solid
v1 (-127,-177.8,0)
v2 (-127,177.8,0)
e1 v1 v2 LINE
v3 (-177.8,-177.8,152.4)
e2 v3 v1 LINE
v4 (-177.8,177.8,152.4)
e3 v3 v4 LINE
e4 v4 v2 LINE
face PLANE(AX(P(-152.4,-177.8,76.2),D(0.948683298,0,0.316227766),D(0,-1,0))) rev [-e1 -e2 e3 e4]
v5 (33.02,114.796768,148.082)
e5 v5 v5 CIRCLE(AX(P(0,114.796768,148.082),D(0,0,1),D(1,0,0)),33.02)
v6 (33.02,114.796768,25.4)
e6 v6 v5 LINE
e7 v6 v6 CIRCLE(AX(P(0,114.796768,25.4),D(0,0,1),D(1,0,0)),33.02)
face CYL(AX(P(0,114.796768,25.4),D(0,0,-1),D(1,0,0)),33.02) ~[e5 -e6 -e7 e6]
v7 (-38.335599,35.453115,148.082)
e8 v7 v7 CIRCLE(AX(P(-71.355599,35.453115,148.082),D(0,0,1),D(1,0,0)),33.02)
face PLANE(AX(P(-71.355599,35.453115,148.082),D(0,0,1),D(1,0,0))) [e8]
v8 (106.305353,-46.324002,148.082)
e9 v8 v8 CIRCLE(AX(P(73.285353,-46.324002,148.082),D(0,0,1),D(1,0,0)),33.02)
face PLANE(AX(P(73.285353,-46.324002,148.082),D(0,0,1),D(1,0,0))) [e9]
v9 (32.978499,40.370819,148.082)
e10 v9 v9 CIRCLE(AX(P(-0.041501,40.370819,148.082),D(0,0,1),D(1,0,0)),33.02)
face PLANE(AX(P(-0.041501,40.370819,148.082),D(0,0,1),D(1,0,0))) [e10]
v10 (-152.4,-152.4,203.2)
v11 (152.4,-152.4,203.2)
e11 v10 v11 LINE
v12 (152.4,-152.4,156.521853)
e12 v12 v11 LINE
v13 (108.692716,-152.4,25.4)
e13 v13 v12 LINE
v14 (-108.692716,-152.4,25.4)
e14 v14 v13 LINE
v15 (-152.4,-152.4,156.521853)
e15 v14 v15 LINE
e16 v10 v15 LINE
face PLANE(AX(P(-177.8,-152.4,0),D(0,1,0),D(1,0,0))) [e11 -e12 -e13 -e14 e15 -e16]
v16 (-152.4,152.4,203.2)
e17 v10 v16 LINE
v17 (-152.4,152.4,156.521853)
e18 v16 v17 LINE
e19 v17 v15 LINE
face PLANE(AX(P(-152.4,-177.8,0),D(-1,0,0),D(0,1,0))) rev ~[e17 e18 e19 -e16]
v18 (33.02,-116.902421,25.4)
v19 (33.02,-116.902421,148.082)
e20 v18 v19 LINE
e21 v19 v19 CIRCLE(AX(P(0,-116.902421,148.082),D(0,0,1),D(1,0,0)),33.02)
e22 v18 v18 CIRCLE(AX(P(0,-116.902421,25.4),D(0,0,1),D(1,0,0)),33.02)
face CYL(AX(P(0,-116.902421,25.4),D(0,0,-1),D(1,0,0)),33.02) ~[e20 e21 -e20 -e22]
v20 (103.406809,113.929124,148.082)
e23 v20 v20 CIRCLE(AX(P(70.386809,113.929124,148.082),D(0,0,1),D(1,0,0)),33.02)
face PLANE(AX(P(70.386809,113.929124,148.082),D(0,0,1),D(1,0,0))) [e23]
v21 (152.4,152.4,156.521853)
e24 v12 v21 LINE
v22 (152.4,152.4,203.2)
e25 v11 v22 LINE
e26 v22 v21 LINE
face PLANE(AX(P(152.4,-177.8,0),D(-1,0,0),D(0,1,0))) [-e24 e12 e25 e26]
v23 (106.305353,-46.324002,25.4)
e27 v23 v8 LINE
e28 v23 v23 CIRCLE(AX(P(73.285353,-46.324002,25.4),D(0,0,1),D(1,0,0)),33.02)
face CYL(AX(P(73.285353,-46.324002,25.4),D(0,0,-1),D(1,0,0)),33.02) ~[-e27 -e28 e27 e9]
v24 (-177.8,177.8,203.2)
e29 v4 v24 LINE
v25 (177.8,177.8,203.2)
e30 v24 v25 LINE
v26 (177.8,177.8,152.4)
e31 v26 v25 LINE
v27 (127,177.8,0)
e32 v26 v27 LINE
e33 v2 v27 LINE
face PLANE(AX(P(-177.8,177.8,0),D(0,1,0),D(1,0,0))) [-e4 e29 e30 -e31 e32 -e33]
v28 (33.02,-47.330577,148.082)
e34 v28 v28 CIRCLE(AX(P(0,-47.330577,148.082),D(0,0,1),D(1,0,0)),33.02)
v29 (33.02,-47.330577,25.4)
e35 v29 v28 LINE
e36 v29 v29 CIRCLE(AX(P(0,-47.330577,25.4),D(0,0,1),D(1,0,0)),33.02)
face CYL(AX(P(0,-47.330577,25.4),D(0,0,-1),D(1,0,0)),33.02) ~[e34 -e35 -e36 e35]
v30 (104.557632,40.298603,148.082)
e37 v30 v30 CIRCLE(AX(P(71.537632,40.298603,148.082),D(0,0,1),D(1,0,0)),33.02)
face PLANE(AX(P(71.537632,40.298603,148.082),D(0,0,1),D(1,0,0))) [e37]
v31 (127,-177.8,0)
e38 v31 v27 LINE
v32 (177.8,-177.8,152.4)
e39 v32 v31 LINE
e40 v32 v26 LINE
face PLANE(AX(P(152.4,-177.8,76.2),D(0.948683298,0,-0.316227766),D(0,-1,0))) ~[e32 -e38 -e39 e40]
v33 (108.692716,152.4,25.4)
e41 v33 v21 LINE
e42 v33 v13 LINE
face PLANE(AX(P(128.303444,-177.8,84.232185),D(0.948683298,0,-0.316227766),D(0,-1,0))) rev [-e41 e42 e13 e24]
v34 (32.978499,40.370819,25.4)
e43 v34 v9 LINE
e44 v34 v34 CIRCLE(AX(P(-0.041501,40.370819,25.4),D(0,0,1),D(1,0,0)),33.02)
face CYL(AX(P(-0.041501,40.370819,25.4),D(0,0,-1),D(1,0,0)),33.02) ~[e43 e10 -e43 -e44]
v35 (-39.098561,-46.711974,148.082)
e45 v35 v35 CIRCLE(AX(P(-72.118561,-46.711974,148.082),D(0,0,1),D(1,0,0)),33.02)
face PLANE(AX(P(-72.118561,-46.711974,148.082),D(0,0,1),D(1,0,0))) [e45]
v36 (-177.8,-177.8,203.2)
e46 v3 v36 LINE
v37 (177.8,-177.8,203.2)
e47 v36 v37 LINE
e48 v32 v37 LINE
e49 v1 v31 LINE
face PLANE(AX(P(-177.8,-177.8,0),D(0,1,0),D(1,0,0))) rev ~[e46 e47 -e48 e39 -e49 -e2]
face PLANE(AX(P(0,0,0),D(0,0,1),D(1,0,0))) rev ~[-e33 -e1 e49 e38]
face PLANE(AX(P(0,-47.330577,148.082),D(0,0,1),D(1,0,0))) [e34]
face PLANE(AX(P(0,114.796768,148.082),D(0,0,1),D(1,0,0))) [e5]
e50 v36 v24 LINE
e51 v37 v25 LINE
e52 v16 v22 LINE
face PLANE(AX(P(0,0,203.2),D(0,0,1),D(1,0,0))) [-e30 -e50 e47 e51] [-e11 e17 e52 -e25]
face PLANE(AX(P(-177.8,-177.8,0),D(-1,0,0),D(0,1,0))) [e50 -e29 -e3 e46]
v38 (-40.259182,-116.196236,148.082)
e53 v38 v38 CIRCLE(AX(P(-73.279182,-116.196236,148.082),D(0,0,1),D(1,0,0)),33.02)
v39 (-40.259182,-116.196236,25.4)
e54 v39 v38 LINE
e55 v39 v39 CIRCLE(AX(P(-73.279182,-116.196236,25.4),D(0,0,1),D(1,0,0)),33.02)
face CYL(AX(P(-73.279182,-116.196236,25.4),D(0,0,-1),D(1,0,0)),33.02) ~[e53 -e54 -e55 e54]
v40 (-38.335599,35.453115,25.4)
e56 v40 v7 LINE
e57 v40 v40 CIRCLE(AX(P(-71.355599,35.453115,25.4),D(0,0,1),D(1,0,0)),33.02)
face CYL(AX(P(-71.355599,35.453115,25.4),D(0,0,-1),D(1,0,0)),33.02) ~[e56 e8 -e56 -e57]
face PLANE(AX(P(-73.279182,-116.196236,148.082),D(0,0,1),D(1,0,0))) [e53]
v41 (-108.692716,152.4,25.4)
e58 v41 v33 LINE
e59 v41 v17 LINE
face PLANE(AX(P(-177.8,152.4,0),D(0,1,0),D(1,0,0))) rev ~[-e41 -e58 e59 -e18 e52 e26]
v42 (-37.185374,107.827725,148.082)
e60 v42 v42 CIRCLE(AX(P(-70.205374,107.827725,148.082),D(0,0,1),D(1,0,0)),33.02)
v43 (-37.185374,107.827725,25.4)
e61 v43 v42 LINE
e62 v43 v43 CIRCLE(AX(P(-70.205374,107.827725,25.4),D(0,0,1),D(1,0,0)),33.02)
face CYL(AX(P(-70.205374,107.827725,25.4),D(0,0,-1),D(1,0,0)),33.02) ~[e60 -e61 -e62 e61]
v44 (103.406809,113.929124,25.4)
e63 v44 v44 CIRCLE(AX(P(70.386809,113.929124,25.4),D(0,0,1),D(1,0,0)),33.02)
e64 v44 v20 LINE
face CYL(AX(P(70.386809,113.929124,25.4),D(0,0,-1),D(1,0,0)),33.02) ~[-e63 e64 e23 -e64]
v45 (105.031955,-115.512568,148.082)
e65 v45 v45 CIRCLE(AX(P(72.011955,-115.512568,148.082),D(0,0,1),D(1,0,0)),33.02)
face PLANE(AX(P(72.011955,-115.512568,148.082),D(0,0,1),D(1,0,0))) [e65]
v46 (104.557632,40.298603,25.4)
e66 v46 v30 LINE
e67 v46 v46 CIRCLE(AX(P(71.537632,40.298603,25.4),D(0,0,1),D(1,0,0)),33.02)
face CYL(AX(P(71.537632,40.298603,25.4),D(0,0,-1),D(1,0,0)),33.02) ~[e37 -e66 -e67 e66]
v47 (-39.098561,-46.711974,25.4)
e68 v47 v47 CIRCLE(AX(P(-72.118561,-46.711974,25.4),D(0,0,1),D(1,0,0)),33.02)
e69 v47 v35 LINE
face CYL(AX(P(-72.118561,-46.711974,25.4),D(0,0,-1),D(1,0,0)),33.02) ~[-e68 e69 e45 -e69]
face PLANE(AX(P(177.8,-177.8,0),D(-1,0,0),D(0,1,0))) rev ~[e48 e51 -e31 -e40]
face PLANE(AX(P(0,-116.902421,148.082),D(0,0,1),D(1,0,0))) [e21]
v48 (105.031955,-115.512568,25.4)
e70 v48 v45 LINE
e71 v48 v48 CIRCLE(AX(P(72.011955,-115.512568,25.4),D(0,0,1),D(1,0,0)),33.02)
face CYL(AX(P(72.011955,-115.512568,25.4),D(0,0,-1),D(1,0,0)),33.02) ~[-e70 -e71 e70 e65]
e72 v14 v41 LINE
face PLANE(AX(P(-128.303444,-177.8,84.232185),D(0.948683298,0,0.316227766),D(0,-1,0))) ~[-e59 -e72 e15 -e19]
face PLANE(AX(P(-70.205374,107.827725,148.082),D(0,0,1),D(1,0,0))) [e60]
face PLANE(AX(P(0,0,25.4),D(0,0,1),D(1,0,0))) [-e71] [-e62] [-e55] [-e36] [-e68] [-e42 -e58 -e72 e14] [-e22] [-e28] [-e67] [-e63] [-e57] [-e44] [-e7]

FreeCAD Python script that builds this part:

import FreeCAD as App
import Part
import Sketcher

V = App.Vector
Q = App.Units.Quantity


def edges_at(feature, points):
    """Names of the edges that pass closest to the given points."""
    edges = feature.Shape.Edges
    near = lambda p: min(range(len(edges)), key=lambda i: edges[i].distToShape(Part.Vertex(*p))[0])
    return sorted({f"Edge{near(p) + 1}" for p in points})


def faces_at(feature, points):
    """Names of the faces that lie closest to the given points."""
    faces = feature.Shape.Faces
    near = lambda p: min(range(len(faces)), key=lambda i: faces[i].distToShape(Part.Vertex(*p))[0])
    return sorted({f"Face{near(p) + 1}" for p in points})

doc = App.newDocument("Part")
body = doc.addObject("PartDesign::Body", "Body")

# Sketch on XY plane
sketch1 = body.newObject("Sketcher::SketchObject", "Sketch")
sketch1.AttachmentSupport = (doc.getObject("XY_Plane"), [""])
sketch1.MapMode = "FlatFace"
sketch1.addGeometry([
    Part.LineSegment(V(-178, 178, 0), V(-178, -178, 0)),
    Part.LineSegment(V(-178, -178, 0), V(178, -178, 0)),
    Part.LineSegment(V(178, -178, 0), V(178, 178, 0)),
    Part.LineSegment(V(178, 178, 0), V(-178, 178, 0)),
], False)
sketch1.addConstraint([
    Sketcher.Constraint("Coincident", 0, 2, 1, 1),
    Sketcher.Constraint("Coincident", 1, 2, 2, 1),
    Sketcher.Constraint("Coincident", 2, 2, 3, 1),
    Sketcher.Constraint("Coincident", 3, 2, 0, 1),
    Sketcher.Constraint("Vertical", 0),
    Sketcher.Constraint("Horizontal", 1),
    Sketcher.Constraint("Vertical", 2),
    Sketcher.Constraint("Horizontal", 3),
    Sketcher.Constraint("Symmetric", 0, 2, 2, 2, -1, 1),
    Sketcher.Constraint("Equal", 3, 0),
    Sketcher.Constraint("DistanceX", 1, 1, 1, 2, Q("14 in")),
])
pad1 = body.newObject("PartDesign::Pad", "Pad")
pad1.Profile = sketch1
pad1.Length = Q("8 in")
doc.recompute()

chamfer = body.newObject("PartDesign::Chamfer", "Chamfer")
chamfer.Base = (pad1, edges_at(pad1, [(177.8, 0, 0)]))
chamfer.ChamferType = "Two distances"
chamfer.Size = Q("6 in")
chamfer.Size2 = Q("2 in")
doc.recompute()

chamfer2 = body.newObject("PartDesign::Chamfer", "Chamfer001")
chamfer2.Base = (chamfer, edges_at(chamfer, [(-177.8, 0, 0)]))
chamfer2.ChamferType = "Two distances"
chamfer2.Size = Q("6 in")
chamfer2.Size2 = Q("2 in")
chamfer2.FlipDirection = True
doc.recompute()

thickness = body.newObject("PartDesign::Thickness", "Thickness")
thickness.Base = (chamfer2, faces_at(chamfer2, [(0, 0, 203.2)]))
thickness.Value = Q("1 in")
thickness.Reversed = True
thickness.Join = "Arc"

# Sketch on XY plane
sketch2 = body.newObject("Sketcher::SketchObject", "Sketch001")
sketch2.AttachmentSupport = (doc.getObject("XY_Plane"), [""])
sketch2.MapMode = "FlatFace"
sketch2.AttachmentOffset = App.Placement(V(0, 0, 1 * 25.4), App.Rotation())
sketch2.addGeometry(Part.Circle(V(-70, 108, 0), V(0, 0, 1), 33), False)
sketch2.addConstraint([
    Sketcher.Constraint("Diameter", 0, Q("2.6 in")),
    Sketcher.Constraint("DistanceX", 0, 3, -1, 1, Q("70.205374 mm")),
    Sketcher.Constraint("DistanceY", -1, 1, 0, 3, Q("107.827725 mm")),
])
pad2 = body.newObject("PartDesign::Pad", "Pad001")
pad2.Profile = sketch2
pad2.Length = Q("4.83 in")

# Sketch on XY plane
sketch3 = body.newObject("Sketcher::SketchObject", "Sketch002")
sketch3.AttachmentSupport = (doc.getObject("XY_Plane"), [""])
sketch3.MapMode = "FlatFace"
sketch3.AttachmentOffset = App.Placement(V(0, 0, 1 * 25.4), App.Rotation())
sketch3.addGeometry(Part.Circle(V(0, 115, 0), V(0, 0, 1), 33), False)
sketch3.addConstraint([
    Sketcher.Constraint("PointOnObject", 0, 3, -2),
    Sketcher.Constraint("Diameter", 0, Q("2.6 in")),
    Sketcher.Constraint("DistanceY", -1, 1, 0, 3, Q("114.796768 mm")),
])
pad3 = body.newObject("PartDesign::Pad", "Pad002")
pad3.Profile = sketch3
pad3.Length = Q("4.83 in")

# Sketch on XY plane
sketch4 = body.newObject("Sketcher::SketchObject", "Sketch003")
sketch4.AttachmentSupport = (doc.getObject("XY_Plane"), [""])
sketch4.MapMode = "FlatFace"
sketch4.AttachmentOffset = App.Placement(V(0, 0, 1 * 25.4), App.Rotation())
sketch4.addGeometry([
    Part.Circle(V(0, 115, 0), V(0, 0, 1), 33),  # 0
    Part.Circle(V(70, 114, 0), V(0, 0, 1), 33),  # 1
    Part.Circle(V(72, 40, 0), V(0, 0, 1), 33),  # 2
    Part.Circle(V(0, 40, 0), V(0, 0, 1), 33),  # 3
    Part.Circle(V(-71, 35, 0), V(0, 0, 1), 33),  # 4
    Part.Circle(V(-72, -47, 0), V(0, 0, 1), 33),  # 5
    Part.Circle(V(0, -47, 0), V(0, 0, 1), 33),  # 6
    Part.Circle(V(73, -46, 0), V(0, 0, 1), 33),  # 7
    Part.Circle(V(72, -116, 0), V(0, 0, 1), 33),  # 8
    Part.Circle(V(0, -117, 0), V(0, 0, 1), 33),  # 9
    Part.Circle(V(-73, -116, 0), V(0, 0, 1), 33),  # 10
], False)
sketch4.addConstraint([
    Sketcher.Constraint("Equal", 0, 1),
    Sketcher.Constraint("Equal", 1, 2),
    Sketcher.Constraint("Equal", 2, 3),
    Sketcher.Constraint("Equal", 3, 4),
    Sketcher.Constraint("Equal", 4, 5),
    Sketcher.Constraint("Equal", 5, 6),
    Sketcher.Constraint("Equal", 6, 7),
    Sketcher.Constraint("Equal", 7, 8),
    Sketcher.Constraint("Equal", 8, 9),
    Sketcher.Constraint("Equal", 9, 10),
    Sketcher.Constraint("PointOnObject", 0, 3, -2),
    Sketcher.Constraint("PointOnObject", 6, 3, -2),
    Sketcher.Constraint("PointOnObject", 9, 3, -2),
    Sketcher.Constraint("Diameter", 0, Q("2.6 in")),
    Sketcher.Constraint("DistanceX", 3, 3, -1, 1, Q("0.041501 mm")),
    Sketcher.Constraint("DistanceX", 4, 3, -1, 1, Q("71.355599 mm")),
    Sketcher.Constraint("DistanceY", 7, 3, -1, 1, Q("46.324002 mm")),
    Sketcher.Constraint("DistanceX", 8, 3, 7, 3, Q("1.273398 mm")),
    Sketcher.Constraint("DistanceY", -1, 1, 0, 3, Q("114.796768 mm")),
    Sketcher.Constraint("DistanceX", -1, 1, 1, 3, Q("70.386809 mm")),
    Sketcher.Constraint("DistanceY", -1, 1, 3, 3, Q("40.370819 mm")),
    Sketcher.Constraint("DistanceX", 5, 3, -1, 1, Q("72.118561 mm")),
    Sketcher.Constraint("DistanceY", 9, 3, -1, 1, Q("116.902421 mm")),
    Sketcher.Constraint("DistanceY", 2, 3, 1, 3, Q("73.630521 mm")),
    Sketcher.Constraint("DistanceX", 4, 3, 2, 3, Q("142.893231 mm")),
    Sketcher.Constraint("DistanceY", 4, 3, 1, 3, Q("78.476008 mm")),
    Sketcher.Constraint("DistanceY", 5, 3, 4, 3, Q("82.165089 mm")),
    Sketcher.Constraint("DistanceY", 5, 3, 0, 3, Q("161.508742 mm")),
    Sketcher.Constraint("DistanceY", 6, 3, 4, 3, Q("82.783692 mm")),
    Sketcher.Constraint("DistanceX", 2, 3, 7, 3, Q("1.747721 mm")),
    Sketcher.Constraint("DistanceY", 8, 3, 6, 3, Q("68.181991 mm")),
    Sketcher.Constraint("DistanceX", 10, 3, 5, 3, Q("1.160621 mm")),
    Sketcher.Constraint("DistanceY", 10, 3, 6, 3, Q("68.865659 mm")),
])
pad4 = body.newObject("PartDesign::Pad", "Pad003")
pad4.Profile = sketch4
pad4.Length = Q("4.83 in")

doc.recompute()
